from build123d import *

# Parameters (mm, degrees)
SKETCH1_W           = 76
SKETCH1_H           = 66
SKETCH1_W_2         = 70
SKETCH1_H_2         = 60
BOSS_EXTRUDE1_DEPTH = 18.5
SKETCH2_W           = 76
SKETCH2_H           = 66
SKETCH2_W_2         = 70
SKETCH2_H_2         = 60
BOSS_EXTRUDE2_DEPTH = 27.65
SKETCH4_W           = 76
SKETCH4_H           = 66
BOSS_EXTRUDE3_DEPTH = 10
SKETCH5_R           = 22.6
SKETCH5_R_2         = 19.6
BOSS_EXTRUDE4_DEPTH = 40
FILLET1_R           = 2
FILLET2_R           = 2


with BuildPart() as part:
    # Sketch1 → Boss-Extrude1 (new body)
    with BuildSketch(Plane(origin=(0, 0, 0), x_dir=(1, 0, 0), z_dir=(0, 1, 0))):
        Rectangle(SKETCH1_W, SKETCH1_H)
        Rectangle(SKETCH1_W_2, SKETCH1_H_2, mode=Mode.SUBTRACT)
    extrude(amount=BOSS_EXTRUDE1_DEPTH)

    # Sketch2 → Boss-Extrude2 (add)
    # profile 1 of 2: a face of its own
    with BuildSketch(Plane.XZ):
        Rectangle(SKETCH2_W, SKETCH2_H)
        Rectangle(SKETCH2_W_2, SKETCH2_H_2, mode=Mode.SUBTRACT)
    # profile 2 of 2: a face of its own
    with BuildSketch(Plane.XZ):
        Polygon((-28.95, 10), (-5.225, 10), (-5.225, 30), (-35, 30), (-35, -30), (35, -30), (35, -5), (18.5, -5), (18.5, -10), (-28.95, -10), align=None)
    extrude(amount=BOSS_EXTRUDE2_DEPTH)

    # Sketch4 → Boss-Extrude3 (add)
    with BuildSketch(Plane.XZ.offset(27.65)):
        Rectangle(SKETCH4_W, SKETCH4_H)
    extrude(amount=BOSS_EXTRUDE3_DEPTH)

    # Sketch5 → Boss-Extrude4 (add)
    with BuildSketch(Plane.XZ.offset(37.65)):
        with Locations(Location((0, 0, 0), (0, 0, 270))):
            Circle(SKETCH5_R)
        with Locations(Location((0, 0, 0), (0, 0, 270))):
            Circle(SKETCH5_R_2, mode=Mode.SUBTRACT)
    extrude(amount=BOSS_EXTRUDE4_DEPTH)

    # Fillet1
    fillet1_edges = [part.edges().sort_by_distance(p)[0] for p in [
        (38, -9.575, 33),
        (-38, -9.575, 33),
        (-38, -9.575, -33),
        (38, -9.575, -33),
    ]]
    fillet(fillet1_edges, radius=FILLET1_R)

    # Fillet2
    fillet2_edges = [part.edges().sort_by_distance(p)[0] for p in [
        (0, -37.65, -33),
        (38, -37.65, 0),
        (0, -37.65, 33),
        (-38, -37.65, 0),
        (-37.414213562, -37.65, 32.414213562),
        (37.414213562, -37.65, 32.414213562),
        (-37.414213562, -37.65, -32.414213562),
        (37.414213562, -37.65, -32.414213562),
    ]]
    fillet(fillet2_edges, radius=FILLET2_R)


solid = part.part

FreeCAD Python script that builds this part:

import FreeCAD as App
import Part
import Sketcher

V = App.Vector
Q = App.Units.Quantity


def edges_at(feature, points):
    """Names of the edges that pass closest to the given points."""
    edges = feature.Shape.Edges
    near = lambda p: min(range(len(edges)), key=lambda i: edges[i].distToShape(Part.Vertex(*p))[0])
    return sorted({f"Edge{near(p) + 1}" for p in points})


def add_polygon(sketch, points):
    """Adds a closed chain of lines whose ends are joined by coincident constraints."""
    first, n = sketch.GeometryCount, len(points)
    for a, b in zip(points, points[1:] + points[:1]):
        sketch.addGeometry(Part.LineSegment(App.Vector(*a, 0), App.Vector(*b, 0)), False)
    for i in range(n):
        sketch.addConstraint(Sketcher.Constraint("Coincident", first + i, 2, first + (i + 1) % n, 1))

doc = App.newDocument("Part")
body = doc.addObject("PartDesign::Body", "Body")

# Sketch on XZ plane
sketch1 = doc.addObject("Sketcher::SketchObject", "Sketch")
body.addObject(sketch1)
sketch1.AttachmentSupport = (doc.XZ_Plane, [""])
sketch1.MapMode = "FlatFace"
add_polygon(sketch1, [(-38, -33), (-38, 33), (38, 33), (38, -33)])  # lines 0-3
add_polygon(sketch1, [(35, 30), (-35, 30), (-35, -30), (35, -30)])  # lines 4-7
sketch1.addConstraint(Sketcher.Constraint("Vertical", 0))
sketch1.addConstraint(Sketcher.Constraint("Horizontal", 1))
sketch1.addConstraint(Sketcher.Constraint("Vertical", 2))
sketch1.addConstraint(Sketcher.Constraint("Horizontal", 3))
sketch1.addConstraint(Sketcher.Constraint("Horizontal", 4))
sketch1.addConstraint(Sketcher.Constraint("Vertical", 5))
sketch1.addConstraint(Sketcher.Constraint("Horizontal", 6))
sketch1.addConstraint(Sketcher.Constraint("Vertical", 7))
sketch1.addConstraint(Sketcher.Constraint("Symmetric", 0, 2, 2, 2, -1, 1))
sketch1.addConstraint(Sketcher.Constraint("Symmetric", 4, 2, 6, 2, -1, 1))
sketch1.addConstraint(Sketcher.Constraint("DistanceX", 1, 1, 1, 2, Q("76 mm")))
sketch1.addConstraint(Sketcher.Constraint("DistanceX", 4, 2, 4, 1, Q("70 mm")))
sketch1.addConstraint(Sketcher.Constraint("DistanceY", 0, 1, 0, 2, Q("66 mm")))
sketch1.addConstraint(Sketcher.Constraint("DistanceY", 5, 2, 5, 1, Q("60 mm")))
pad1 = doc.addObject("PartDesign::Pad", "Pad")
body.addObject(pad1)
pad1.Profile = sketch1
pad1.Length = 18.5
pad1.Reversed = True

# Sketch on XZ plane
sketch2 = doc.addObject("Sketcher::SketchObject", "Sketch001")
body.addObject(sketch2)
sketch2.AttachmentSupport = (doc.XZ_Plane, [""])
sketch2.MapMode = "FlatFace"
add_polygon(sketch2, [(-38, 33), (-38, -33), (38, -33), (38, 33)])  # lines 0-3
add_polygon(sketch2, [(35, 30), (35, -5), (18.5, -5), (18.5, -10), (-28.95, -10), (-28.95, 10), (-5.225, 10), (-5.225, 30)])  # lines 4-11
sketch2.addConstraint(Sketcher.Constraint("Vertical", 0))
sketch2.addConstraint(Sketcher.Constraint("Horizontal", 1))
sketch2.addConstraint(Sketcher.Constraint("Vertical", 2))
sketch2.addConstraint(Sketcher.Constraint("Horizontal", 3))
sketch2.addConstraint(Sketcher.Constraint("Vertical", 4))
sketch2.addConstraint(Sketcher.Constraint("Horizontal", 5))
sketch2.addConstraint(Sketcher.Constraint("Vertical", 6))
sketch2.addConstraint(Sketcher.Constraint("Horizontal", 7))
sketch2.addConstraint(Sketcher.Constraint("Vertical", 8))
sketch2.addConstraint(Sketcher.Constraint("Horizontal", 9))
sketch2.addConstraint(Sketcher.Constraint("Vertical", 10))
sketch2.addConstraint(Sketcher.Constraint("Horizontal", 11))
sketch2.addConstraint(Sketcher.Constraint("Symmetric", 0, 2, 2, 2, -1, 1))
sketch2.addConstraint(Sketcher.Constraint("Equal", 8, 10))
sketch2.addConstraint(Sketcher.Constraint("DistanceX", 1, 1, 1, 2, Q("76 mm")))
sketch2.addConstraint(Sketcher.Constraint("DistanceY", 0, 2, 0, 1, Q("66 mm")))
sketch2.addConstraint(Sketcher.Constraint("DistanceY", 4, 2, 4, 1, Q("35 mm")))
sketch2.addConstraint(Sketcher.Constraint("DistanceY", 6, 2, 6, 1, Q("5 mm")))
sketch2.addConstraint(Sketcher.Constraint("DistanceX", 5, 2, 5, 1, Q("16.5 mm")))
sketch2.addConstraint(Sketcher.Constraint("DistanceX", -1, 1, 4, 2, Q("35 mm")))
sketch2.addConstraint(Sketcher.Constraint("DistanceY", 4, 2, -1, 1, Q("5 mm")))
sketch2.addConstraint(Sketcher.Constraint("DistanceX", 7, 2, 7, 1, Q("47.45 mm")))
sketch2.addConstraint(Sketcher.Constraint("DistanceX", 9, 1, 9, 2, Q("23.725 mm")))
pad2 = doc.addObject("PartDesign::Pad", "Pad001")
body.addObject(pad2)
pad2.Profile = sketch2
pad2.Length = 27.65

# Sketch on XZ plane
sketch3 = doc.addObject("Sketcher::SketchObject", "Sketch002")
body.addObject(sketch3)
sketch3.AttachmentSupport = (doc.XZ_Plane, [""])
sketch3.MapMode = "FlatFace"
sketch3.AttachmentOffset = App.Placement(V(0, 0, 27.65), App.Rotation())
add_polygon(sketch3, [(-38, 33), (-38, -33), (38, -33), (38, 33)])  # lines 0-3
sketch3.addConstraint(Sketcher.Constraint("Vertical", 0))
sketch3.addConstraint(Sketcher.Constraint("Horizontal", 1))
sketch3.addConstraint(Sketcher.Constraint("Vertical", 2))
sketch3.addConstraint(Sketcher.Constraint("Horizontal", 3))
sketch3.addConstraint(Sketcher.Constraint("Symmetric", 0, 2, 2, 2, -1, 1))
sketch3.addConstraint(Sketcher.Constraint("DistanceX", 1, 1, 1, 2, Q("76 mm")))
sketch3.addConstraint(Sketcher.Constraint("DistanceY", 0, 2, 0, 1, Q("66 mm")))
pad3 = doc.addObject("PartDesign::Pad", "Pad002")
body.addObject(pad3)
pad3.Profile = sketch3
pad3.Length = 10

# Sketch on XZ plane
sketch4 = doc.addObject("Sketcher::SketchObject", "Sketch003")
body.addObject(sketch4)
sketch4.AttachmentSupport = (doc.XZ_Plane, [""])
sketch4.MapMode = "FlatFace"
sketch4.AttachmentOffset = App.Placement(V(0, 0, 37.65), App.Rotation())
sketch4.addGeometry(Part.Circle(V(0, 0, 0), V(0, 0, 1), 22.6), False)
sketch4.addGeometry(Part.Circle(V(0, 0, 0), V(0, 0, 1), 19.6), False)
sketch4.addConstraint(Sketcher.Constraint("Coincident", 0, 3, -1, 1))
sketch4.addConstraint(Sketcher.Constraint("Coincident", 1, 3, -1, 1))
sketch4.addConstraint(Sketcher.Constraint("Diameter", 0, Q("45.2 mm")))
sketch4.addConstraint(Sketcher.Constraint("Diameter", 1, Q("39.2 mm")))
pad4 = doc.addObject("PartDesign::Pad", "Pad003")
body.addObject(pad4)
pad4.Profile = sketch4
pad4.Length = 40
doc.recompute()

fillet = doc.addObject("PartDesign::Fillet", "Fillet")
body.addObject(fillet)
fillet.Base = (pad4, edges_at(pad4, [
    (38, -9.575, 33),
    (-38, -9.575, 33),
    (-38, -9.575, -33),
    (38, -9.575, -33),
]))
fillet.Radius = 2
doc.recompute()

fillet2 = doc.addObject("PartDesign::Fillet", "Fillet001")
body.addObject(fillet2)
fillet2.Base = (fillet, edges_at(fillet, [
    (0, -37.65, -33),
    (38, -37.65, 0),
    (0, -37.65, 33),
    (-38, -37.65, 0),
    (-37.414, -37.65, 32.414),
    (37.414, -37.65, 32.414),
    (-37.414, -37.65, -32.414),
    (37.414, -37.65, -32.414),
]))
fillet2.Radius = 2

doc.recompute()
